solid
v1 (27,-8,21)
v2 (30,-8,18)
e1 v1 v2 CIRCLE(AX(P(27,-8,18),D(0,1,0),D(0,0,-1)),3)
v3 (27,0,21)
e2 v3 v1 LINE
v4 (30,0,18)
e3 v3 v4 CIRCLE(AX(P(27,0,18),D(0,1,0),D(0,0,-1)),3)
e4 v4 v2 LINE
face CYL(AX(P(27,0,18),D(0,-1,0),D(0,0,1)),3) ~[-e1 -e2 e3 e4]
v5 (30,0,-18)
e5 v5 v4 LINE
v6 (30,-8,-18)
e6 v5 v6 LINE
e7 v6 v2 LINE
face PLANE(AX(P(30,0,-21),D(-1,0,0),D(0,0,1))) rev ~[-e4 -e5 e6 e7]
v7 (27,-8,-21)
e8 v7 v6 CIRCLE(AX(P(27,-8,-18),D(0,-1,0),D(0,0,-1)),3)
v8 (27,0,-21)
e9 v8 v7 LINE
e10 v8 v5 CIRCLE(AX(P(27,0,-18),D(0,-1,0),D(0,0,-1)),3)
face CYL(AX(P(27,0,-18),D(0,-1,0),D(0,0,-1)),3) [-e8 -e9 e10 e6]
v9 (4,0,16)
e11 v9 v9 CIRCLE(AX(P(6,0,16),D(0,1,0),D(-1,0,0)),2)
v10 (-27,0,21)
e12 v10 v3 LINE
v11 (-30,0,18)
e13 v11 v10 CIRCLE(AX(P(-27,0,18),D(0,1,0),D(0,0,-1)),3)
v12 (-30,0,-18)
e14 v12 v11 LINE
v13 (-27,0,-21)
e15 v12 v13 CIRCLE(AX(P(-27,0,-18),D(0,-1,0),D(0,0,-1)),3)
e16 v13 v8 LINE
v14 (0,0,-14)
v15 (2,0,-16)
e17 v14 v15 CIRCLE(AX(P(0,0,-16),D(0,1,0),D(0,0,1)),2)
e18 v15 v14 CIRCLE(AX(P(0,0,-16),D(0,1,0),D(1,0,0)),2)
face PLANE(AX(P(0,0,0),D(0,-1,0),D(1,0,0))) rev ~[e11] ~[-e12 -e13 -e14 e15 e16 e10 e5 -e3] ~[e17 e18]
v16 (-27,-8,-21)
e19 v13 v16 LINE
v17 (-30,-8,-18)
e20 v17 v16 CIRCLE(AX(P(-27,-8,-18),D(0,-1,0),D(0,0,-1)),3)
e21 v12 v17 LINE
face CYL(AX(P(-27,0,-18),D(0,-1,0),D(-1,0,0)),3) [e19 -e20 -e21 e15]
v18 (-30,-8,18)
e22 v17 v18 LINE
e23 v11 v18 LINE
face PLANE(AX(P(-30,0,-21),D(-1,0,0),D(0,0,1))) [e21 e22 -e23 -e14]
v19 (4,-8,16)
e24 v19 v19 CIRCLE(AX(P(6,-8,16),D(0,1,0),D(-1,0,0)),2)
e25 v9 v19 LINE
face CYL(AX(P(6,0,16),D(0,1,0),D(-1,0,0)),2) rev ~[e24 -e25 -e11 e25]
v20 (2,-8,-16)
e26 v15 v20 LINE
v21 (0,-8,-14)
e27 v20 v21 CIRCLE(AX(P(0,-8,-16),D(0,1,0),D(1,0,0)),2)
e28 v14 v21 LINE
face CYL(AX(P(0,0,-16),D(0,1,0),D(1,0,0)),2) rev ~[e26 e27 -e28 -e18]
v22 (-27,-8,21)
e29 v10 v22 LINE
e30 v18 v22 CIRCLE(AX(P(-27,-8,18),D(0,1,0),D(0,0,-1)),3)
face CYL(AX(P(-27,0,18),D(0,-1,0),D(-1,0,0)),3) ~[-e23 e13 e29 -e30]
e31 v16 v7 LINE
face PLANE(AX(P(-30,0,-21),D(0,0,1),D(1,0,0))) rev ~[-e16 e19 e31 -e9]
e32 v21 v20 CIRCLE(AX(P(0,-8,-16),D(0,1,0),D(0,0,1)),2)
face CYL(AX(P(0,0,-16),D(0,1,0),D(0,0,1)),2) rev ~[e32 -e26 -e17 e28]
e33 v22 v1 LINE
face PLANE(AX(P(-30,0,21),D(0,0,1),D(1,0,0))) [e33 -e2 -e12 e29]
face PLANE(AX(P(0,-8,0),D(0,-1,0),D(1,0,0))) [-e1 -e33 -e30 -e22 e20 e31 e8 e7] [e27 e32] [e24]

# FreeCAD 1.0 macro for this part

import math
import FreeCAD as App
import Part
import Sketcher
Q = App.Units.Quantity


def edges_at(feature, points):
    """Names of the edges that pass closest to the given points."""
    edges = feature.Shape.Edges
    near = lambda p: min(range(len(edges)), key=lambda i: edges[i].distToShape(Part.Vertex(*p))[0])
    return sorted({f"Edge{near(p) + 1}" for p in points})

doc = App.newDocument("Part")
body = doc.addObject("PartDesign::Body", "Body")

# Sketch on XZ plane
sketch1 = body.newObject("Sketcher::SketchObject", "Sketch")
sketch1.AttachmentSupport = (doc.getObject("XZ_Plane"), [""])
sketch1.MapMode = "FlatFace"
sketch1.addGeometry([
    Part.LineSegment(App.Vector(11.5, 4.7, 0), App.Vector(16.5, 4.7, 0)),  # 0
    Part.LineSegment(App.Vector(16.5, 4.7, 0), App.Vector(16.5, 7.5, 0)),  # 1
    Part.LineSegment(App.Vector(16.5, 7.5, 0), App.Vector(11.5, 7.5, 0)),  # 2
    Part.LineSegment(App.Vector(11.5, 7.5, 0), App.Vector(11.5, 11.5, 0)),  # 3
    Part.LineSegment(App.Vector(11.5, 11.5, 0), App.Vector(-11.5, 11.5, 0)),  # 4
    Part.LineSegment(App.Vector(-11.5, 11.5, 0), App.Vector(-11.5, 7.5, 0)),  # 5
    Part.LineSegment(App.Vector(-11.5, 7.5, 0), App.Vector(-16.5, 7.5, 0)),  # 6
    Part.LineSegment(App.Vector(-16.5, 7.5, 0), App.Vector(-16.5, 4.7, 0)),  # 7
    Part.LineSegment(App.Vector(-16.5, 4.7, 0), App.Vector(-11.5, 4.7, 0)),  # 8
    Part.LineSegment(App.Vector(-11.5, 4.7, 0), App.Vector(-11.5, -11.5, 0)),  # 9
    Part.LineSegment(App.Vector(-11.5, -11.5, 0), App.Vector(11.5, -11.5, 0)),  # 10
    Part.LineSegment(App.Vector(11.5, -11.5, 0), App.Vector(11.5, 4.7, 0)),  # 11
], False)
sketch1.addConstraint([
    Sketcher.Constraint("Coincident", 0, 2, 1, 1),
    Sketcher.Constraint("Coincident", 1, 2, 2, 1),
    Sketcher.Constraint("Coincident", 2, 2, 3, 1),
    Sketcher.Constraint("Coincident", 3, 2, 4, 1),
    Sketcher.Constraint("Coincident", 4, 2, 5, 1),
    Sketcher.Constraint("Coincident", 5, 2, 6, 1),
    Sketcher.Constraint("Coincident", 6, 2, 7, 1),
    Sketcher.Constraint("Coincident", 7, 2, 8, 1),
    Sketcher.Constraint("Coincident", 8, 2, 9, 1),
    Sketcher.Constraint("Coincident", 9, 2, 10, 1),
    Sketcher.Constraint("Coincident", 10, 2, 11, 1),
    Sketcher.Constraint("Coincident", 11, 2, 0, 1),
    Sketcher.Constraint("Horizontal", 0),
    Sketcher.Constraint("Vertical", 1),
    Sketcher.Constraint("Horizontal", 2),
    Sketcher.Constraint("Vertical", 3),
    Sketcher.Constraint("Horizontal", 4),
    Sketcher.Constraint("Vertical", 5),
    Sketcher.Constraint("Horizontal", 6),
    Sketcher.Constraint("Vertical", 7),
    Sketcher.Constraint("Horizontal", 8),
    Sketcher.Constraint("Vertical", 9),
    Sketcher.Constraint("Horizontal", 10),
    Sketcher.Constraint("Vertical", 11),
    Sketcher.Constraint("Symmetric", 3, 2, 9, 2, -1, 1),
    Sketcher.Constraint("Symmetric", 2, 2, 5, 2, -2),
    Sketcher.Constraint("Symmetric", 0, 2, 7, 2, -2),
    Sketcher.Constraint("Vertical", 3, 2, 10, 2),
    Sketcher.Constraint("DistanceX", 0, 1, 0, 2, Q("5 mm")),
    Sketcher.Constraint("DistanceX", 4, 2, 4, 1, Q("23 mm")),
    Sketcher.Constraint("DistanceY", 3, 1, 3, 2, Q("4 mm")),
    Sketcher.Constraint("DistanceY", 1, 1, 1, 2, Q("2.8 mm")),
    Sketcher.Constraint("DistanceY", 9, 2, 9, 1, Q("16.2 mm")),
])
pad1 = body.newObject("PartDesign::Pad", "Pad")
pad1.Profile = sketch1
pad1.Length = 12.6
pad1.Midplane = True
body2 = doc.addObject("PartDesign::Body", "Body001")

# Sketch on XZ plane
sketch2 = body2.newObject("Sketcher::SketchObject", "Sketch001")
sketch2.AttachmentSupport = (doc.getObject("XZ_Plane001"), [""])
sketch2.MapMode = "FlatFace"
sketch2.addGeometry([
    Part.LineSegment(App.Vector(-23, 12, 0), App.Vector(-23, -12, 0)),
    Part.LineSegment(App.Vector(-23, -12, 0), App.Vector(23, -12, 0)),
    Part.LineSegment(App.Vector(23, -12, 0), App.Vector(23, 12, 0)),
    Part.LineSegment(App.Vector(23, 12, 0), App.Vector(-23, 12, 0)),
], False)
sketch2.addConstraint([
    Sketcher.Constraint("Coincident", 0, 2, 1, 1),
    Sketcher.Constraint("Coincident", 1, 2, 2, 1),
    Sketcher.Constraint("Coincident", 2, 2, 3, 1),
    Sketcher.Constraint("Coincident", 3, 2, 0, 1),
    Sketcher.Constraint("Vertical", 0),
    Sketcher.Constraint("Horizontal", 1),
    Sketcher.Constraint("Vertical", 2),
    Sketcher.Constraint("Horizontal", 3),
    Sketcher.Constraint("Symmetric", 0, 2, 2, 2, -1, 1),
    Sketcher.Constraint("DistanceX", 1, 1, 1, 2, Q("46 mm")),
    Sketcher.Constraint("DistanceY", 0, 2, 0, 1, Q("23 mm")),
])
pad2 = body2.newObject("PartDesign::Pad", "Pad001")
pad2.Profile = sketch2
pad2.Length = 16
body3 = doc.addObject("PartDesign::Body", "Body002")
doc.recompute()

body2.Placement = App.Placement(App.Vector(0, 9.75, 0), App.Rotation(App.Vector(0, 0, 1), 0))
boolean = body3.newObject("PartDesign::Boolean", "Boolean")
boolean.Type = "Fuse"
boolean.addObjects([body2])
body4 = doc.addObject("PartDesign::Body", "Body003")

# Sketch on XZ plane
sketch3 = body4.newObject("Sketcher::SketchObject", "Sketch002")
sketch3.AttachmentSupport = (doc.getObject("XZ_Plane003"), [""])
sketch3.MapMode = "FlatFace"
sketch3.addGeometry([
    Part.LineSegment(App.Vector(11.5, -4, 0), App.Vector(11.5, -11.5, 0)),
    Part.LineSegment(App.Vector(11.5, -11.5, 0), App.Vector(15.5, -11.5, 0)),
    Part.LineSegment(App.Vector(15.5, -11.5, 0), App.Vector(15.5, -4, 0)),
    Part.LineSegment(App.Vector(15.5, -4, 0), App.Vector(11.5, -4, 0)),
], False)
sketch3.addConstraint([
    Sketcher.Constraint("Coincident", 0, 2, 1, 1),
    Sketcher.Constraint("Coincident", 1, 2, 2, 1),
    Sketcher.Constraint("Coincident", 2, 2, 3, 1),
    Sketcher.Constraint("Coincident", 3, 2, 0, 1),
    Sketcher.Constraint("Vertical", 0),
    Sketcher.Constraint("Horizontal", 1),
    Sketcher.Constraint("Vertical", 2),
    Sketcher.Constraint("Horizontal", 3),
    Sketcher.Constraint("DistanceX", 1, 1, 1, 2, Q("4 mm")),
    Sketcher.Constraint("DistanceY", 0, 2, 0, 1, Q("7.5 mm")),
    Sketcher.Constraint("DistanceY", 2, 2, -1, 1, Q("4 mm")),
    Sketcher.Constraint("DistanceX", -1, 1, 0, 2, Q("11.5 mm")),
])
pad3 = body4.newObject("PartDesign::Pad", "Pad002")
pad3.Profile = sketch3
pad3.Length = 25
body5 = doc.addObject("PartDesign::Body", "Body004")
doc.recompute()

body4.Placement = App.Placement(App.Vector(0, 4, 0), App.Rotation(App.Vector(0, 0, 1), 0))
boolean2 = body5.newObject("PartDesign::Boolean", "Boolean001")
boolean2.Type = "Fuse"
boolean2.addObjects([body4])
doc.recompute()

boolean3 = body3.newObject("PartDesign::Boolean", "Boolean002")
boolean3.Type = "Cut"
boolean3.addObjects([body5])
doc.recompute()

boolean4 = body3.newObject("PartDesign::Boolean", "Boolean003")
boolean4.Type = "Cut"
boolean4.addObjects([body])
doc.recompute()

fillet = body3.newObject("PartDesign::Fillet", "Fillet")
fillet.Base = (boolean4, edges_at(boolean4, [
    (-23, -6.25, 0),
    (23, -6.25, 0),
    (23, 1.75, 11.5),
    (-23, 1.75, 11.5),
    (-17.25, -6.25, 11.5),
    (17.25, -6.25, 11.5),
    (23, 1.75, -11.5),
    (19.25, -6.25, -11.5),
    (-23, 1.75, -11.5),
    (-17.25, -6.25, -11.5),
]))
fillet.Radius = 1.5
body6 = doc.addObject("PartDesign::Body", "Body005")

# Sketch on XZ plane
sketch4 = body6.newObject("Sketcher::SketchObject", "Sketch003")
sketch4.AttachmentSupport = (doc.getObject("XZ_Plane005"), [""])
sketch4.MapMode = "FlatFace"
sketch4.addGeometry([
    Part.LineSegment(App.Vector(-23, 21, 0), App.Vector(-23, -21, 0)),  # 0
    Part.LineSegment(App.Vector(-23, -21, 0), App.Vector(23, -21, 0)),  # 1
    Part.LineSegment(App.Vector(23, -21, 0), App.Vector(23, 21, 0)),  # 2
    Part.LineSegment(App.Vector(23, 21, 0), App.Vector(-23, 21, 0)),  # 3
    Part.ArcOfCircle(Part.Circle(App.Vector(-18, -16, 0), App.Vector(0, 0, 1), 2), math.radians(90), math.radians(270)),  # 4
    Part.LineSegment(App.Vector(-18, -14, 0), App.Vector(18, -14, 0)),  # 5
    Part.ArcOfCircle(Part.Circle(App.Vector(18, -16, 0), App.Vector(0, 0, 1), 2), math.radians(-90), math.radians(90)),  # 6
    Part.LineSegment(App.Vector(18, -18, 0), App.Vector(-18, -18, 0)),  # 7
    Part.ArcOfCircle(Part.Circle(App.Vector(18, 16, 0), App.Vector(0, 0, 1), 2), math.radians(-90), math.radians(90)),  # 8
    Part.LineSegment(App.Vector(18, 14, 0), App.Vector(-18, 14, 0)),  # 9
    Part.ArcOfCircle(Part.Circle(App.Vector(-18, 16, 0), App.Vector(0, 0, 1), 2), math.radians(90), math.radians(270)),  # 10
    Part.LineSegment(App.Vector(-18, 18, 0), App.Vector(18, 18, 0)),  # 11
], False)
sketch4.addConstraint([
    Sketcher.Constraint("Coincident", 0, 2, 1, 1),
    Sketcher.Constraint("Coincident", 1, 2, 2, 1),
    Sketcher.Constraint("Coincident", 2, 2, 3, 1),
    Sketcher.Constraint("Coincident", 3, 2, 0, 1),
    Sketcher.Constraint("Tangent", 4, 1, 5, 1),
    Sketcher.Constraint("Tangent", 5, 2, 6, 2),
    Sketcher.Constraint("Tangent", 6, 1, 7, 1),
    Sketcher.Constraint("Tangent", 7, 2, 4, 2),
    Sketcher.Constraint("Tangent", 8, 1, 9, 1),
    Sketcher.Constraint("Tangent", 9, 2, 10, 2),
    Sketcher.Constraint("Tangent", 10, 1, 11, 1),
    Sketcher.Constraint("Tangent", 11, 2, 8, 2),
    Sketcher.Constraint("Vertical", 0),
    Sketcher.Constraint("Horizontal", 1),
    Sketcher.Constraint("Vertical", 2),
    Sketcher.Constraint("Horizontal", 3),
    Sketcher.Constraint("Horizontal", 5),
    Sketcher.Constraint("Horizontal", 7),
    Sketcher.Constraint("Horizontal", 9),
    Sketcher.Constraint("Horizontal", 11),
    Sketcher.Constraint("Equal", 6, 8),
    Sketcher.Constraint("Symmetric", 4, 3, 8, 3, -1, 1),
    Sketcher.Constraint("Symmetric", 0, 2, 2, 2, -1, 1),
    Sketcher.Constraint("Vertical", 6, 3, 8, 3),
    Sketcher.Constraint("Vertical", 4, 3, 10, 3),
    Sketcher.Constraint("Radius", 4, Q("2 mm")),
    Sketcher.Constraint("DistanceX", 1, 1, 1, 2, Q("46 mm")),
    Sketcher.Constraint("DistanceX", 5, 1, 5, 2, Q("36 mm")),
    Sketcher.Constraint("DistanceY", 0, 2, 0, 1, Q("42 mm")),
    Sketcher.Constraint("DistanceY", 4, 3, -1, 1, Q("16 mm")),
])
pad4 = body6.newObject("PartDesign::Pad", "Pad003")
pad4.Profile = sketch4
pad4.Length = 3
body7 = doc.addObject("PartDesign::Body", "Body006")
doc.recompute()

body6.Placement = App.Placement(App.Vector(0, 12, 0), App.Rotation(App.Vector(0, 0, 1), 0))
boolean5 = body7.newObject("PartDesign::Boolean", "Boolean004")
boolean5.Type = "Fuse"
boolean5.addObjects([body6])
doc.recompute()

fillet2 = body7.newObject("PartDesign::Fillet", "Fillet001")
fillet2.Base = (boolean5, edges_at(boolean5, [
    (-23, 10.5, 21),
    (23, 10.5, 21),
    (23, 10.5, -21),
    (-23, 10.5, -21),
]))
fillet2.Radius = 3
body8 = doc.addObject("PartDesign::Body", "Body007")

# Sketch on XZ plane
sketch5 = body8.newObject("Sketcher::SketchObject", "Sketch004")
sketch5.AttachmentSupport = (doc.getObject("XZ_Plane007"), [""])
sketch5.MapMode = "FlatFace"
sketch5.addGeometry([
    Part.LineSegment(App.Vector(-30, 21, 0), App.Vector(-30, -21, 0)),  # 0
    Part.LineSegment(App.Vector(-30, -21, 0), App.Vector(30, -21, 0)),  # 1
    Part.LineSegment(App.Vector(30, -21, 0), App.Vector(30, 21, 0)),  # 2
    Part.LineSegment(App.Vector(30, 21, 0), App.Vector(-30, 21, 0)),  # 3
    Part.ArcOfCircle(Part.Circle(App.Vector(0, -16, 0), App.Vector(0, 0, 1), 2), math.radians(0), math.radians(90)),  # 4
    Part.ArcOfCircle(Part.Circle(App.Vector(0, -16, 0), App.Vector(0, 0, 1), 2), math.radians(90), math.radians(360)),  # 5
    Part.Circle(App.Vector(6, 16, 0), App.Vector(0, 0, 1), 2),  # 6
], False)
sketch5.addConstraint([
    Sketcher.Constraint("Coincident", 0, 2, 1, 1),
    Sketcher.Constraint("Coincident", 1, 2, 2, 1),
    Sketcher.Constraint("Coincident", 2, 2, 3, 1),
    Sketcher.Constraint("Coincident", 3, 2, 0, 1),
    Sketcher.Constraint("Tangent", 4, 1, 5, 2),
    Sketcher.Constraint("Coincident", 5, 1, 4, 2),
    Sketcher.Constraint("Vertical", 0),
    Sketcher.Constraint("Horizontal", 1),
    Sketcher.Constraint("Vertical", 2),
    Sketcher.Constraint("Horizontal", 3),
    Sketcher.Constraint("Equal", 5, 6),
    Sketcher.Constraint("Symmetric", 0, 2, 2, 2, -1, 1),
    Sketcher.Constraint("PointOnObject", 4, 3, -2),
    Sketcher.Constraint("PointOnObject", 5, 1, -2),
    Sketcher.Constraint("Horizontal", 5, 3, 4, 1),
    Sketcher.Constraint("Diameter", 6, Q("4 mm")),
    Sketcher.Constraint("DistanceX", 1, 1, 1, 2, Q("60 mm")),
    Sketcher.Constraint("DistanceY", 0, 2, 0, 1, Q("42 mm")),
    Sketcher.Constraint("DistanceY", 4, 3, -1, 1, Q("16 mm")),
    Sketcher.Constraint("DistanceX", -1, 1, 6, 3, Q("6 mm")),
    Sketcher.Constraint("DistanceY", -1, 1, 6, 3, Q("16 mm")),
])
pad5 = body8.newObject("PartDesign::Pad", "Pad004")
pad5.Profile = sketch5
pad5.Length = 8
doc.recompute()

fillet3 = body8.newObject("PartDesign::Fillet", "Fillet002")
fillet3.Base = (pad5, edges_at(pad5, [
    (30, -4, -21),
    (-30, -4, -21),
    (-30, -4, 21),
    (30, -4, 21),
]))
fillet3.Radius = 3
body3.Visibility = False
body7.Visibility = False

doc.recompute()
